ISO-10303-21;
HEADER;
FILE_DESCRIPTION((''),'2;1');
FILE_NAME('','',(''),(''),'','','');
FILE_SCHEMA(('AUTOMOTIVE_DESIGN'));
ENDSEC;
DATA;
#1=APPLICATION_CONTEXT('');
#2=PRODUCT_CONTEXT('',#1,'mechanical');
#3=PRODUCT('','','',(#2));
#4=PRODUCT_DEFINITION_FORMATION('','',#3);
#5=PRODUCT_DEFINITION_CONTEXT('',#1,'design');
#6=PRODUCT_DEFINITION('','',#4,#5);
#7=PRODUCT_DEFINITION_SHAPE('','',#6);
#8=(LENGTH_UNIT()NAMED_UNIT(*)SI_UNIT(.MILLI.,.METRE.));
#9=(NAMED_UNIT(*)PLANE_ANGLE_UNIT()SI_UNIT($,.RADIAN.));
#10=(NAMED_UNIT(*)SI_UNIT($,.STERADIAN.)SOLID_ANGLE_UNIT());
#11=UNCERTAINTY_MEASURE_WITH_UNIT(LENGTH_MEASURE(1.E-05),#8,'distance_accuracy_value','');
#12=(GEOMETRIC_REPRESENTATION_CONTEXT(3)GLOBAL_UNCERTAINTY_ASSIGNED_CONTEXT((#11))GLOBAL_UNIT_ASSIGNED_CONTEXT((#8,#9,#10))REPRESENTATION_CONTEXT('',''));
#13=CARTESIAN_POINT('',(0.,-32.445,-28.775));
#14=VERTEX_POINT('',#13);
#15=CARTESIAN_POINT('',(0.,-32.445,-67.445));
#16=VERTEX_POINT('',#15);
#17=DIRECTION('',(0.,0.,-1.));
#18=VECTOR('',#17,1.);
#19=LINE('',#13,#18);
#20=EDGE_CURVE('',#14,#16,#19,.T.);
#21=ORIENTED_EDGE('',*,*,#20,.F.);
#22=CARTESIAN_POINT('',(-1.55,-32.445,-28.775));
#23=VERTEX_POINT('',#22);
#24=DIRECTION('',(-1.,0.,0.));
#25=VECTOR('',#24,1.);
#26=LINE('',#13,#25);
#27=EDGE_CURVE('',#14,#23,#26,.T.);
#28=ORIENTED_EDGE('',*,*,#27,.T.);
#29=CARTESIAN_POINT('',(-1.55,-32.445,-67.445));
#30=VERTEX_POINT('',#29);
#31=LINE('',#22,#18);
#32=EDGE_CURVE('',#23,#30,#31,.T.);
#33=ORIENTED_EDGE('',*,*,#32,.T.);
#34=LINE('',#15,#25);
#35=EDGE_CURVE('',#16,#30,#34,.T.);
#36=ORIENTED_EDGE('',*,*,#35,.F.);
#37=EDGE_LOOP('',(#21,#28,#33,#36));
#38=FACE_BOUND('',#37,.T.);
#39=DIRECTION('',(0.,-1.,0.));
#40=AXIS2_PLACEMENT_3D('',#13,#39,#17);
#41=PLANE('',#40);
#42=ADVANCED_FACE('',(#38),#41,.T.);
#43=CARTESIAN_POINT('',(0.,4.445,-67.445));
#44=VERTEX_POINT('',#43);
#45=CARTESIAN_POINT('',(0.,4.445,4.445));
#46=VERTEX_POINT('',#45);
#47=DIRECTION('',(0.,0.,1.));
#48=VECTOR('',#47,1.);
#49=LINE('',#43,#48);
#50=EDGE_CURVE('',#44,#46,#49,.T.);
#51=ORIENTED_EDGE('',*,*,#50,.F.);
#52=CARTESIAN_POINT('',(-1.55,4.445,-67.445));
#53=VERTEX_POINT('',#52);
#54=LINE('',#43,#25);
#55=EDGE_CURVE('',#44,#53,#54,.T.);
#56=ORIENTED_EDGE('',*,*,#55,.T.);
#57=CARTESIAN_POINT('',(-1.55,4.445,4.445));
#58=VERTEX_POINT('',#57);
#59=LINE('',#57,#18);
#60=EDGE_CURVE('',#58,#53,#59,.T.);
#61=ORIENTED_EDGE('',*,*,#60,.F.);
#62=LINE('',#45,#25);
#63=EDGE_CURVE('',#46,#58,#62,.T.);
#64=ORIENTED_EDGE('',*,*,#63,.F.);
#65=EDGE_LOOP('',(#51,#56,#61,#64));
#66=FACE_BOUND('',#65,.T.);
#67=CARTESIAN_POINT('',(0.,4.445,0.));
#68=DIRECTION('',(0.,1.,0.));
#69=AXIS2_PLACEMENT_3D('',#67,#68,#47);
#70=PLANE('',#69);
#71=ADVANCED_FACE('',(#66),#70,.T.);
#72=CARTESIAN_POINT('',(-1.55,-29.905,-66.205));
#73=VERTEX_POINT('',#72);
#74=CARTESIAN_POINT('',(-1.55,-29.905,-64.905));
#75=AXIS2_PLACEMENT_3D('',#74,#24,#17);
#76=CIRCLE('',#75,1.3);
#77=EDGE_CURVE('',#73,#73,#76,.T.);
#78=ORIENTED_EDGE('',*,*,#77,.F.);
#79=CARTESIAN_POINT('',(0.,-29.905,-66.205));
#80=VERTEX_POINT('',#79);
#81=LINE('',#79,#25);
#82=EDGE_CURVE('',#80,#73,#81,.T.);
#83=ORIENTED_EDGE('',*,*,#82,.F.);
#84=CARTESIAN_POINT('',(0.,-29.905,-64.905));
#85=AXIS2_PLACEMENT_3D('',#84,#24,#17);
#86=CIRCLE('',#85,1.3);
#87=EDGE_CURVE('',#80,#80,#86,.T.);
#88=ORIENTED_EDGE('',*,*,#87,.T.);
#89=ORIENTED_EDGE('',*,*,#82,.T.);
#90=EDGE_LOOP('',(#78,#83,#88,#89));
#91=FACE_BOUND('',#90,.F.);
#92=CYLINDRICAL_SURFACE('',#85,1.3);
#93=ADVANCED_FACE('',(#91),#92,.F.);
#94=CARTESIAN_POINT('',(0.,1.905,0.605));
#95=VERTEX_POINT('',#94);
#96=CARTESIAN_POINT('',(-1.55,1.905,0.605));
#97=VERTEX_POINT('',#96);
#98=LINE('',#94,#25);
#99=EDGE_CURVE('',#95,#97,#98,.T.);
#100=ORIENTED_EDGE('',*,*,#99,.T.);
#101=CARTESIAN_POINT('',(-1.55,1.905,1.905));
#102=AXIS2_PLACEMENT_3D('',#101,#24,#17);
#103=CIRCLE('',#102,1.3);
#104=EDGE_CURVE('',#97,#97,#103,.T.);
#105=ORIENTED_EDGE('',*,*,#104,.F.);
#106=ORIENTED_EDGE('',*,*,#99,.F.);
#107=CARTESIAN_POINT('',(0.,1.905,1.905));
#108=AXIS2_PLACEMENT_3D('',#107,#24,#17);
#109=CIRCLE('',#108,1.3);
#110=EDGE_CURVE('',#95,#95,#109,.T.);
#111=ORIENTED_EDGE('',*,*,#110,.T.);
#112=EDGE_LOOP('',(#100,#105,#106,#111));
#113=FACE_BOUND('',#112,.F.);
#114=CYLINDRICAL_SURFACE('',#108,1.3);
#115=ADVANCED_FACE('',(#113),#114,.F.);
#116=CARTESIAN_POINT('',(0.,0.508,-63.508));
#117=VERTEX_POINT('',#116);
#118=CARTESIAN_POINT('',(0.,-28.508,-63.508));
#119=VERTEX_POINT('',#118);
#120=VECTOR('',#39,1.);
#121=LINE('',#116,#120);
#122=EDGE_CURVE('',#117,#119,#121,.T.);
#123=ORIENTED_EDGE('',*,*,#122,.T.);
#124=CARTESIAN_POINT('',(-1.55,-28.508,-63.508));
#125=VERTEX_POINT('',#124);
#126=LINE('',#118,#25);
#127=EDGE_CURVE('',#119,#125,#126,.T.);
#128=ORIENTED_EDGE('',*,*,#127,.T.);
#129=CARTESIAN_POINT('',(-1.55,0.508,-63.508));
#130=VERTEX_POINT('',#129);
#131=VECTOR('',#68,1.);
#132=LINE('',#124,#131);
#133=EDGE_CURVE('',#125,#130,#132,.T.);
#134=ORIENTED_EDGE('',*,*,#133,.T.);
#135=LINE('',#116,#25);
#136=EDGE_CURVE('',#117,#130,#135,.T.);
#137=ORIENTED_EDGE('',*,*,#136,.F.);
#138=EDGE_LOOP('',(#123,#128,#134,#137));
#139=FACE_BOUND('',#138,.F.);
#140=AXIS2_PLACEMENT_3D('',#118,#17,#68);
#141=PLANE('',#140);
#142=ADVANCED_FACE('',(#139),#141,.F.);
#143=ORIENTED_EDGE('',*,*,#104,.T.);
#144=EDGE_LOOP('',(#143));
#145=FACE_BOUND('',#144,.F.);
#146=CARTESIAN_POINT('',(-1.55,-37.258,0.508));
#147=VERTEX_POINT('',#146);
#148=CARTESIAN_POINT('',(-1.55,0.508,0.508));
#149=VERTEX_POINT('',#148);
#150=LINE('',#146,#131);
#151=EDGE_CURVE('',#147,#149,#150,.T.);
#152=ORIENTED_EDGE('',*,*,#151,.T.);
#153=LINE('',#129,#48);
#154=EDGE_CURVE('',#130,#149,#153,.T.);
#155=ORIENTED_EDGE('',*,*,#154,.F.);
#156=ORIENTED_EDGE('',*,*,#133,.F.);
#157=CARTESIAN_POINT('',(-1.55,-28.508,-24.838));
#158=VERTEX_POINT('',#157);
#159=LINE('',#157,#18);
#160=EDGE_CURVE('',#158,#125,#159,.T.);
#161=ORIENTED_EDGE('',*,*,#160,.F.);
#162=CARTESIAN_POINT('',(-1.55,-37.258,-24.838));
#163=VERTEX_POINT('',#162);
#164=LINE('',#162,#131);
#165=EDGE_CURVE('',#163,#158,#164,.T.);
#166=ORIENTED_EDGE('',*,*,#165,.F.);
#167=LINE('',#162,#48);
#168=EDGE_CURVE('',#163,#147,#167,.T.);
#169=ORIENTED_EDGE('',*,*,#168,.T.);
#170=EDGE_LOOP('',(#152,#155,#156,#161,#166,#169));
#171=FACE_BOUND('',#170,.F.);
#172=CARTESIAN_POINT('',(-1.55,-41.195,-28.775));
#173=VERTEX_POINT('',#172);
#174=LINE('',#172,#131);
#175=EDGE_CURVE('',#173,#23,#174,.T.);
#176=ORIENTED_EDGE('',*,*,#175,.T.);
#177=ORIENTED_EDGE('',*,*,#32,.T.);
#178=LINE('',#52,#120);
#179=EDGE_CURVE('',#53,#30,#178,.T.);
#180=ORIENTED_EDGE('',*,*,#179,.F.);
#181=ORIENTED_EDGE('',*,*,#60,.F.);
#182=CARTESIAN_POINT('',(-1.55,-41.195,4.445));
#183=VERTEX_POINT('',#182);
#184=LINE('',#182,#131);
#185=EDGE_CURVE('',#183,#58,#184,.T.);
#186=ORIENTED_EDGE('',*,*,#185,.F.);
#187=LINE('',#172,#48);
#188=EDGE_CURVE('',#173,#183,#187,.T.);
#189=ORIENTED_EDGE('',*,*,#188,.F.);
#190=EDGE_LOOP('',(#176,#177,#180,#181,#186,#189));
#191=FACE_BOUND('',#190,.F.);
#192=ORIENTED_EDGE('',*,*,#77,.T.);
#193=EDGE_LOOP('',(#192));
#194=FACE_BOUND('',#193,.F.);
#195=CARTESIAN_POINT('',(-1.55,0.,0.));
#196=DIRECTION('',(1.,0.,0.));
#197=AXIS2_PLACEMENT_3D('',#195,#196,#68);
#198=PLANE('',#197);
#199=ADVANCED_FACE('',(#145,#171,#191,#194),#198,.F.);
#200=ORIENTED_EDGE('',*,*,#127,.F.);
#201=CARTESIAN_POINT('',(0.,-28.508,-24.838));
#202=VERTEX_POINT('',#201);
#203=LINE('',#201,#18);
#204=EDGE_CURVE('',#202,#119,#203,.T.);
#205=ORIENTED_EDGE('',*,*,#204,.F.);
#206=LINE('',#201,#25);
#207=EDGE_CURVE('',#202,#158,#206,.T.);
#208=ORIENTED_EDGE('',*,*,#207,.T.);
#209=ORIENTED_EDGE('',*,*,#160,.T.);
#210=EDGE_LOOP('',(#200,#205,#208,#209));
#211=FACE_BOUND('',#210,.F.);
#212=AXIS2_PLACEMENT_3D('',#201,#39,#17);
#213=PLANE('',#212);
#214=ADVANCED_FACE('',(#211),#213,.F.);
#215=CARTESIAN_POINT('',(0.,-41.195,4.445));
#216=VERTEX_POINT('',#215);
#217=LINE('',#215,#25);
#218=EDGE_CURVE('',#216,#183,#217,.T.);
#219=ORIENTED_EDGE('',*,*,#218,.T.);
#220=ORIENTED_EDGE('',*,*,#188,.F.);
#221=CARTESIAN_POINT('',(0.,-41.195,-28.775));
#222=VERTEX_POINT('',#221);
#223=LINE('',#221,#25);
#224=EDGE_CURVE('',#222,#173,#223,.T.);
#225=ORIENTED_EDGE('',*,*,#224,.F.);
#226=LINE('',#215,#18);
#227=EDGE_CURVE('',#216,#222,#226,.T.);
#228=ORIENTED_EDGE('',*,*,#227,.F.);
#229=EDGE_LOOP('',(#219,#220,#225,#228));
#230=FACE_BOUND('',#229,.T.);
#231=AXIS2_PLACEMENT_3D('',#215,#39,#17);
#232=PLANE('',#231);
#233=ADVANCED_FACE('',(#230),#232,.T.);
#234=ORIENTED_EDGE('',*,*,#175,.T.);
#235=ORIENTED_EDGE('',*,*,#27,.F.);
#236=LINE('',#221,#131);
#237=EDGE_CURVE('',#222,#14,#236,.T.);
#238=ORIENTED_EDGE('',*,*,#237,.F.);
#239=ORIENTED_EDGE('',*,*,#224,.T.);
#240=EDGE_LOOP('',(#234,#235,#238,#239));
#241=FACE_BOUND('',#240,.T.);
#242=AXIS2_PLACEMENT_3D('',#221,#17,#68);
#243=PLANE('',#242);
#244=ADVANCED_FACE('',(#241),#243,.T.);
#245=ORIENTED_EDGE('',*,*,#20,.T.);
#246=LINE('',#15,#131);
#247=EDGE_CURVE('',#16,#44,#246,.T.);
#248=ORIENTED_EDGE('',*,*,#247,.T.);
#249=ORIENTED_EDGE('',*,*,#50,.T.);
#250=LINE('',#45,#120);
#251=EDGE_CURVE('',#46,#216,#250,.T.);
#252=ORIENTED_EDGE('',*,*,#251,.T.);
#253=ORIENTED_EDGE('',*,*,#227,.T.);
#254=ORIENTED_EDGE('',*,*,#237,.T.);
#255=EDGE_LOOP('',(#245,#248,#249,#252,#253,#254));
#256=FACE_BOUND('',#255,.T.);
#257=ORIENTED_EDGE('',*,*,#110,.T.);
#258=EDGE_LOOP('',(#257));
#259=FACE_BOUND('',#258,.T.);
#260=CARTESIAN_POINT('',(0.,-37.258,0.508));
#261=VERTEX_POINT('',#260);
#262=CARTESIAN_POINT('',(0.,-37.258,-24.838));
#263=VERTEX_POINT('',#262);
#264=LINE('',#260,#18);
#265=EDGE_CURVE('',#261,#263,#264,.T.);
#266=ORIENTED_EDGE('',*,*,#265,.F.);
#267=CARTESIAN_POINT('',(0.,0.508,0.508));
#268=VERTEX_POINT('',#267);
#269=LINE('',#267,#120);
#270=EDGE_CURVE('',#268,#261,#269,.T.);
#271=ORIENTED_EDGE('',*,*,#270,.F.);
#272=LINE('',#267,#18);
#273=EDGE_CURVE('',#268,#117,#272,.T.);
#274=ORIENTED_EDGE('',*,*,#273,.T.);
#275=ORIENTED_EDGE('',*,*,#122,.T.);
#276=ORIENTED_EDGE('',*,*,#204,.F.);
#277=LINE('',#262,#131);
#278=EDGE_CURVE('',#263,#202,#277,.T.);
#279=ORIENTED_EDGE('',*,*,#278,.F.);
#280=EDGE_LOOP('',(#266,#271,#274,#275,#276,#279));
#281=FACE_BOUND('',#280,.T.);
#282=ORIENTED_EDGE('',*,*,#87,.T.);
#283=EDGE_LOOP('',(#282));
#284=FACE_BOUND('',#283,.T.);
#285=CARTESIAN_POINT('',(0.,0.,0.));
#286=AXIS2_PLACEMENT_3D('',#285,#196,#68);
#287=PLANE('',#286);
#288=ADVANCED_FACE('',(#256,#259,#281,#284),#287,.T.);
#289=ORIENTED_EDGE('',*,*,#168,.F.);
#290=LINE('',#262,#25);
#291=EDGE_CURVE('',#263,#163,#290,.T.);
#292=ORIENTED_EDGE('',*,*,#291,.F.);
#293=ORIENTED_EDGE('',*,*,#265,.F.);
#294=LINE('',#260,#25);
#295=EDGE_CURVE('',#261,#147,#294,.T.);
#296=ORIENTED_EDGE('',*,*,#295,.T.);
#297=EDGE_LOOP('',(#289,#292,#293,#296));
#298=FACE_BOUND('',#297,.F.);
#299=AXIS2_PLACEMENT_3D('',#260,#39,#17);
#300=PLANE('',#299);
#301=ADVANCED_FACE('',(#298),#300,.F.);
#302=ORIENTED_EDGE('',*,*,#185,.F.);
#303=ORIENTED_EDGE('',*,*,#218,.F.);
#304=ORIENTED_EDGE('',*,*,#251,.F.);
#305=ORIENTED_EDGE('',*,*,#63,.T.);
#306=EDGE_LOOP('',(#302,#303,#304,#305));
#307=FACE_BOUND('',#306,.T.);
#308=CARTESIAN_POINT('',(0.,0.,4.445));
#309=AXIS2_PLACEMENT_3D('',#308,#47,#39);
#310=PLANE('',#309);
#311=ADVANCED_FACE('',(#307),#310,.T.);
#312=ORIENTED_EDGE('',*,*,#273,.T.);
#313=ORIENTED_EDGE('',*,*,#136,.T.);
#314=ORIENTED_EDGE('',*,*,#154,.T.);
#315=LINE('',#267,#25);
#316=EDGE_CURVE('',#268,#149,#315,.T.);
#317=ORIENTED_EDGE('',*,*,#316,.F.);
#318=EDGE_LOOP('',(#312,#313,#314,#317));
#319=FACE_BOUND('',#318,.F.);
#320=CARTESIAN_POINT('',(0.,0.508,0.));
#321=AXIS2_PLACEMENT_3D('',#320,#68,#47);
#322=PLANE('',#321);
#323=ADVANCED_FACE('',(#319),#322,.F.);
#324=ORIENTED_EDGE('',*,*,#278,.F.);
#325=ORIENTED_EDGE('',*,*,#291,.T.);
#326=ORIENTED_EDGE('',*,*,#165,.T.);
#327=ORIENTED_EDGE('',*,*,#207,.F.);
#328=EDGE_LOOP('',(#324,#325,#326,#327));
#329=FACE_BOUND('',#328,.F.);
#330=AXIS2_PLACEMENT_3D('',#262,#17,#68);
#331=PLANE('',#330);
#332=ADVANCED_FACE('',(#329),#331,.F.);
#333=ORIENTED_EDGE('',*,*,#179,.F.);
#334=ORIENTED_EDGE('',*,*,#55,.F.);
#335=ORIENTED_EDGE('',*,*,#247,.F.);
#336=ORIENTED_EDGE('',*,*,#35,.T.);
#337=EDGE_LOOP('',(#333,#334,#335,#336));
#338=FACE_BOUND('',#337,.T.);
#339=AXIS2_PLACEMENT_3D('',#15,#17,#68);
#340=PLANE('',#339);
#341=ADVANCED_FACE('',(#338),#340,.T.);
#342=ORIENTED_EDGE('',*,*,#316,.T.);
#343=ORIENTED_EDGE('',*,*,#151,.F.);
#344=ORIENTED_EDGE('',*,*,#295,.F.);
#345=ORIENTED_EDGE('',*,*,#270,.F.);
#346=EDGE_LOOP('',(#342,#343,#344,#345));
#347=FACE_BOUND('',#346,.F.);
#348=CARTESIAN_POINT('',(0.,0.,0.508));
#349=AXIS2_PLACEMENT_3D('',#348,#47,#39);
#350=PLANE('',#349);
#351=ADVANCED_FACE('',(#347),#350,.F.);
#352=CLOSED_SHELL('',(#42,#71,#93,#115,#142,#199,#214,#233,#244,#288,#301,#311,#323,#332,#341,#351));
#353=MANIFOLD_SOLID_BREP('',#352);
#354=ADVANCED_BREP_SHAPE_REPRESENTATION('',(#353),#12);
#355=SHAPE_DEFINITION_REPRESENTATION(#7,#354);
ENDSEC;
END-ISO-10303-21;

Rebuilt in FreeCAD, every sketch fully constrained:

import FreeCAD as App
import Part
import Sketcher

V = App.Vector


def add_polygon(sketch, points):
    """Adds a closed chain of lines whose ends are joined by coincident constraints."""
    first, n = sketch.GeometryCount, len(points)
    for a, b in zip(points, points[1:] + points[:1]):
        sketch.addGeometry(Part.LineSegment(App.Vector(*a, 0), App.Vector(*b, 0)), False)
    for i in range(n):
        sketch.addConstraint(Sketcher.Constraint("Coincident", first + i, 2, first + (i + 1) % n, 1))

doc = App.newDocument("Part")
body = doc.addObject("PartDesign::Body", "Body")

# Sketch on YZ plane
sketch1 = doc.addObject("Sketcher::SketchObject", "Sketch")
body.addObject(sketch1)
sketch1.AttachmentSupport = (doc.YZ_Plane, [""])
sketch1.MapMode = "FlatFace"
add_polygon(sketch1, [(-41, 4), (-41, -29), (-32, -29), (-32, -67), (4, -67), (4, 4)])  # lines 0-5
add_polygon(sketch1, [(-37, 1), (1, 1), (1, -64), (-29, -64), (-29, -25), (-37, -25)])  # lines 6-11
sketch1.addConstraint(Sketcher.Constraint("Vertical", 0))
sketch1.addConstraint(Sketcher.Constraint("Horizontal", 1))
sketch1.addConstraint(Sketcher.Constraint("Vertical", 2))
sketch1.addConstraint(Sketcher.Constraint("Horizontal", 3))
sketch1.addConstraint(Sketcher.Constraint("Vertical", 4))
sketch1.addConstraint(Sketcher.Constraint("Horizontal", 5))
sketch1.addConstraint(Sketcher.Constraint("Horizontal", 6))
sketch1.addConstraint(Sketcher.Constraint("Vertical", 7))
sketch1.addConstraint(Sketcher.Constraint("Horizontal", 8))
sketch1.addConstraint(Sketcher.Constraint("Vertical", 9))
sketch1.addConstraint(Sketcher.Constraint("Horizontal", 10))
sketch1.addConstraint(Sketcher.Constraint("Vertical", 11))
sketch1.addConstraint(Sketcher.Constraint("Equal", 1, 10))
sketch1.addConstraint(Sketcher.Constraint("Equal", 2, 9))
sketch1.addConstraint(Sketcher.Constraint("DistanceX", -1, 1, 3, 2, 4.445))
sketch1.addConstraint(Sketcher.Constraint("DistanceY", -1, 1, 4, 2, 4.445))
sketch1.addConstraint(Sketcher.Constraint("DistanceX", -1, 1, 6, 2, 0.508))
sketch1.addConstraint(Sketcher.Constraint("DistanceY", -1, 1, 6, 2, 0.508))
sketch1.addConstraint(Sketcher.Constraint("DistanceX", 1, 1, 1, 2, 8.75))
sketch1.addConstraint(Sketcher.Constraint("DistanceX", 3, 1, 3, 2, 36.89))
sketch1.addConstraint(Sketcher.Constraint("DistanceY", 0, 2, 0, 1, 33.22))
sketch1.addConstraint(Sketcher.Constraint("DistanceY", 2, 2, 2, 1, 38.67))
sketch1.addConstraint(Sketcher.Constraint("DistanceX", 6, 1, 6, 2, 37.766))
sketch1.addConstraint(Sketcher.Constraint("DistanceY", 7, 2, 7, 1, 64.016))
pad1 = doc.addObject("PartDesign::Pad", "Pad")
body.addObject(pad1)
pad1.Profile = sketch1
pad1.Length = 1.55
pad1.Reversed = True

# Sketch on YZ plane
sketch2 = doc.addObject("Sketcher::SketchObject", "Sketch001")
body.addObject(sketch2)
sketch2.AttachmentSupport = (doc.YZ_Plane, [""])
sketch2.MapMode = "FlatFace"
sketch2.addGeometry(Part.Circle(V(-16, -42.5, 0), V(0, 0, 1), 1.6), False)
sketch2.addConstraint(Sketcher.Constraint("Diameter", 0, 3.15))
sketch2.addConstraint(Sketcher.Constraint("DistanceX", 0, 3, -1, 1, 16.0))
sketch2.addConstraint(Sketcher.Constraint("DistanceY", 0, 3, -1, 1, 42.5))
doc.recompute()
hole = doc.addObject("PartDesign::Hole", "Hole")
body.addObject(hole)
hole.Profile = sketch2
hole.ThreadType = "None"
hole.Diameter = 3.15
hole.DepthType = "ThroughAll"

# Sketch on YZ plane
sketch3 = doc.addObject("Sketcher::SketchObject", "Sketch002")
body.addObject(sketch3)
sketch3.AttachmentSupport = (doc.YZ_Plane, [""])
sketch3.MapMode = "FlatFace"
sketch3.addGeometry(Part.Circle(V(1.9, 1.9, 0), V(0, 0, 1), 1.3), False)
sketch3.addGeometry(Part.Circle(V(-29.9, -64.9, 0), V(0, 0, 1), 1.3), False)
sketch3.addConstraint(Sketcher.Constraint("Equal", 0, 1))
sketch3.addConstraint(Sketcher.Constraint("Diameter", 0, 2.6))
sketch3.addConstraint(Sketcher.Constraint("DistanceX", 1, 3, 0, 3, 31.81))
sketch3.addConstraint(Sketcher.Constraint("DistanceY", 1, 3, 0, 3, 66.81))
sketch3.addConstraint(Sketcher.Constraint("DistanceX", -1, 1, 0, 3, 1.905))
sketch3.addConstraint(Sketcher.Constraint("DistanceY", -1, 1, 0, 3, 1.905))
doc.recompute()
hole2 = doc.addObject("PartDesign::Hole", "Hole001")
body.addObject(hole2)
hole2.Profile = sketch3
hole2.ThreadType = "None"
hole2.Diameter = 2.6
hole2.DepthType = "ThroughAll"

doc.recompute()
